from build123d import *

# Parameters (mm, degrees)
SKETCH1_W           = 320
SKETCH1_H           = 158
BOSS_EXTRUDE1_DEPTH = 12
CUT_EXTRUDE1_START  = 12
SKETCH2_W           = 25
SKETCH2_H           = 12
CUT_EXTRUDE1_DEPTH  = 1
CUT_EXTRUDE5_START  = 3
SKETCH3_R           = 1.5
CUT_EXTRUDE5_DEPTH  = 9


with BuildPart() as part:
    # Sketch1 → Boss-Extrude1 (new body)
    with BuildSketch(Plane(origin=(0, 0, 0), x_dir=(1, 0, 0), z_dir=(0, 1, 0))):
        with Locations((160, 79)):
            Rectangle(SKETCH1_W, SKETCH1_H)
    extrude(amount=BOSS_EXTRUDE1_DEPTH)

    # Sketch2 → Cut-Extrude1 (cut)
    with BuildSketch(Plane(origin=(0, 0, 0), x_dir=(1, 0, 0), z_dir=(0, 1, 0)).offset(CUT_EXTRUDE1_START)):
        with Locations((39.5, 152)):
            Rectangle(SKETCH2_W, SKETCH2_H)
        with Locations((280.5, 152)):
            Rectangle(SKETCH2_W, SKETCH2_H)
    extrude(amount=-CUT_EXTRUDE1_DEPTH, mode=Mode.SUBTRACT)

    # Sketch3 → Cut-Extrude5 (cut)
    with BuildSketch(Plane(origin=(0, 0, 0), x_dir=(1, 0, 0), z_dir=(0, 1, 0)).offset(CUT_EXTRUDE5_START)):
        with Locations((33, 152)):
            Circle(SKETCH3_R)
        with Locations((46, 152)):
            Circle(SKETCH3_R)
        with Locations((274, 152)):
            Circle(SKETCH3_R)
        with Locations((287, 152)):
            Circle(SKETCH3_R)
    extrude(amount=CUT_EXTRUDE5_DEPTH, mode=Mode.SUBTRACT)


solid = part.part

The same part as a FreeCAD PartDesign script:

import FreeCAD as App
import Part
import Sketcher
from FreeCAD import Vector
Q = App.Units.Quantity


def add_polygon(sketch, points):
    """Adds a closed chain of lines whose ends are joined by coincident constraints."""
    first, n = sketch.GeometryCount, len(points)
    for a, b in zip(points, points[1:] + points[:1]):
        sketch.addGeometry(Part.LineSegment(App.Vector(*a, 0), App.Vector(*b, 0)), False)
    for i in range(n):
        sketch.addConstraint(Sketcher.Constraint("Coincident", first + i, 2, first + (i + 1) % n, 1))

doc = App.newDocument("Part")
body = doc.addObject("PartDesign::Body", "Body")

# Sketch on XZ plane
sketch1 = body.newObject("Sketcher::SketchObject", "Sketch")
sketch1.AttachmentSupport = (doc.getObject("XZ_Plane"), [""])
sketch1.MapMode = "FlatFace"
add_polygon(sketch1, [(0, -158), (0, 0), (320, 0), (320, -158)])  # lines 0-3
sketch1.addConstraint(Sketcher.Constraint("Vertical", 0))
sketch1.addConstraint(Sketcher.Constraint("Horizontal", 1))
sketch1.addConstraint(Sketcher.Constraint("Vertical", 2))
sketch1.addConstraint(Sketcher.Constraint("Horizontal", 3))
sketch1.addConstraint(Sketcher.Constraint("Coincident", 0, 2, -1, 1))
sketch1.addConstraint(Sketcher.Constraint("DistanceX", 1, 1, 1, 2, Q("320 mm")))
sketch1.addConstraint(Sketcher.Constraint("DistanceY", 0, 1, 0, 2, Q("158 mm")))
pad1 = body.newObject("PartDesign::Pad", "Pad")
pad1.Profile = sketch1
pad1.Length = 12
pad1.Reversed = True

# Sketch on XZ plane
sketch2 = body.newObject("Sketcher::SketchObject", "Sketch001")
sketch2.AttachmentSupport = (doc.getObject("XZ_Plane"), [""])
sketch2.MapMode = "FlatFace"
sketch2.AttachmentOffset = App.Placement(Vector(0, 0, -12), App.Rotation())
add_polygon(sketch2, [(27, -158), (27, -146), (52, -146), (52, -158)])  # lines 0-3
add_polygon(sketch2, [(268, -158), (268, -146), (293, -146), (293, -158)])  # lines 4-7
sketch2.addConstraint(Sketcher.Constraint("Vertical", 0))
sketch2.addConstraint(Sketcher.Constraint("Horizontal", 1))
sketch2.addConstraint(Sketcher.Constraint("Vertical", 2))
sketch2.addConstraint(Sketcher.Constraint("Horizontal", 3))
sketch2.addConstraint(Sketcher.Constraint("Vertical", 4))
sketch2.addConstraint(Sketcher.Constraint("Horizontal", 5))
sketch2.addConstraint(Sketcher.Constraint("Vertical", 6))
sketch2.addConstraint(Sketcher.Constraint("Horizontal", 7))
sketch2.addConstraint(Sketcher.Constraint("Horizontal", 1, 2, 4, 2))
sketch2.addConstraint(Sketcher.Constraint("Horizontal", 3, 2, 6, 2))
sketch2.addConstraint(Sketcher.Constraint("Equal", 3, 5))
sketch2.addConstraint(Sketcher.Constraint("DistanceX", 1, 1, 1, 2, Q("25 mm")))
sketch2.addConstraint(Sketcher.Constraint("DistanceY", 0, 1, 0, 2, Q("12 mm")))
sketch2.addConstraint(Sketcher.Constraint("DistanceX", -1, 1, 0, 2, Q("27 mm")))
sketch2.addConstraint(Sketcher.Constraint("DistanceY", 0, 2, -1, 1, Q("146 mm")))
sketch2.addConstraint(Sketcher.Constraint("DistanceX", -1, 1, 4, 2, Q("268 mm")))
pocket1 = body.newObject("PartDesign::Pocket", "Pocket")
pocket1.Profile = sketch2
pocket1.Length = 1
pocket1.Reversed = True

# Sketch on XZ plane
sketch3 = body.newObject("Sketcher::SketchObject", "Sketch002")
sketch3.AttachmentSupport = (doc.getObject("XZ_Plane"), [""])
sketch3.MapMode = "FlatFace"
sketch3.AttachmentOffset = App.Placement(Vector(0, 0, -3), App.Rotation())
sketch3.addGeometry(Part.Circle(Vector(33, -152, 0), Vector(0, 0, 1), 1.5), False)
sketch3.addGeometry(Part.Circle(Vector(46, -152, 0), Vector(0, 0, 1), 1.5), False)
sketch3.addGeometry(Part.Circle(Vector(274, -152, 0), Vector(0, 0, 1), 1.5), False)
sketch3.addGeometry(Part.Circle(Vector(287, -152, 0), Vector(0, 0, 1), 1.5), False)
sketch3.addConstraint(Sketcher.Constraint("Equal", 0, 1))
sketch3.addConstraint(Sketcher.Constraint("Equal", 1, 2))
sketch3.addConstraint(Sketcher.Constraint("Equal", 2, 3))
sketch3.addConstraint(Sketcher.Constraint("Horizontal", 0, 3, 1, 3))
sketch3.addConstraint(Sketcher.Constraint("Horizontal", 1, 3, 2, 3))
sketch3.addConstraint(Sketcher.Constraint("Horizontal", 2, 3, 3, 3))
sketch3.addConstraint(Sketcher.Constraint("Diameter", 0, Q("3 mm")))
sketch3.addConstraint(Sketcher.Constraint("DistanceX", -1, 1, 0, 3, Q("33 mm")))
sketch3.addConstraint(Sketcher.Constraint("DistanceY", 0, 3, -1, 1, Q("152 mm")))
sketch3.addConstraint(Sketcher.Constraint("DistanceX", -1, 1, 1, 3, Q("46 mm")))
sketch3.addConstraint(Sketcher.Constraint("DistanceX", -1, 1, 2, 3, Q("274 mm")))
sketch3.addConstraint(Sketcher.Constraint("DistanceX", -1, 1, 3, 3, Q("287 mm")))
pocket2 = body.newObject("PartDesign::Pocket", "Pocket001")
pocket2.Profile = sketch3
pocket2.Length = 9

doc.recompute()
